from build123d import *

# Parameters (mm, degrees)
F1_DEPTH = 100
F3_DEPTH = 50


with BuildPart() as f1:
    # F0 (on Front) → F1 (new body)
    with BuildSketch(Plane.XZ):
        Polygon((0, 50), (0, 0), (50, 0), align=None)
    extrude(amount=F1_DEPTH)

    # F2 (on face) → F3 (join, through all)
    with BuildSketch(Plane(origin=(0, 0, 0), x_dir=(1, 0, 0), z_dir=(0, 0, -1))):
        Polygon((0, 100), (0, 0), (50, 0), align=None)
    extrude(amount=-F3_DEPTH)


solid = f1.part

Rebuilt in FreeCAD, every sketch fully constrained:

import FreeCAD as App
import Part
import Sketcher

V = App.Vector


def add_polygon(sketch, points):
    """Adds a closed chain of lines whose ends are joined by coincident constraints."""
    first, n = sketch.GeometryCount, len(points)
    for a, b in zip(points, points[1:] + points[:1]):
        sketch.addGeometry(Part.LineSegment(App.Vector(*a, 0), App.Vector(*b, 0)), False)
    for i in range(n):
        sketch.addConstraint(Sketcher.Constraint("Coincident", first + i, 2, first + (i + 1) % n, 1))

doc = App.newDocument("Part")
params = doc.addObject("Spreadsheet::Sheet", "Params")
for row, (alias, value) in enumerate([
    ("sketch1_width", "50 mm"),
    ("pad1_length", "100 mm"),
    ("sketch2_width", "50 mm"),
    ("sketch2_height", "100 mm"),
    ("pad2_length", "50 mm"),
], start=1):
    params.set(f"A{row}", alias)
    params.set(f"B{row}", "=" + value)
    params.setAlias(f"B{row}", alias)

body = doc.addObject("PartDesign::Body", "Body")

# Sketch on XZ plane
sketch1 = body.newObject("Sketcher::SketchObject", "Sketch")
sketch1.AttachmentSupport = (doc.getObject("XZ_Plane"), [""])
sketch1.MapMode = "FlatFace"
add_polygon(sketch1, [(0, 50), (0, 0), (50, 0)])  # lines 0-2
sketch1.addConstraint([
    Sketcher.Constraint("Vertical", 0),
    Sketcher.Constraint("Horizontal", 1),
    Sketcher.Constraint("Coincident", 0, 2, -1, 1),
    Sketcher.Constraint("Equal", 1, 0),
    Sketcher.Constraint("DistanceX", 1, 1, 1, 2, 50.0),
])
sketch1.setExpression("Constraints[7]", "Params.sketch1_width")
pad1 = body.newObject("PartDesign::Pad", "Pad")
pad1.Profile = sketch1
pad1.setExpression("Length", "Params.pad1_length")

# Sketch on XY plane
sketch2 = body.newObject("Sketcher::SketchObject", "Sketch001")
sketch2.AttachmentSupport = (doc.getObject("XY_Plane"), [""])
sketch2.MapMode = "FlatFace"
add_polygon(sketch2, [(0, -100), (0, 0), (50, 0)])  # lines 0-2
sketch2.addConstraint([
    Sketcher.Constraint("Vertical", 0),
    Sketcher.Constraint("Horizontal", 1),
    Sketcher.Constraint("Coincident", 0, 2, -1, 1),
    Sketcher.Constraint("DistanceX", 1, 1, 1, 2, 50.0),
    Sketcher.Constraint("DistanceY", 0, 1, 0, 2, 100.0),
])
sketch2.setExpression("Constraints[6]", "Params.sketch2_width")
sketch2.setExpression("Constraints[7]", "Params.sketch2_height")
pad2 = body.newObject("PartDesign::Pad", "Pad001")
pad2.Profile = sketch2
pad2.setExpression("Length", "Params.pad2_length")

doc.recompute()
